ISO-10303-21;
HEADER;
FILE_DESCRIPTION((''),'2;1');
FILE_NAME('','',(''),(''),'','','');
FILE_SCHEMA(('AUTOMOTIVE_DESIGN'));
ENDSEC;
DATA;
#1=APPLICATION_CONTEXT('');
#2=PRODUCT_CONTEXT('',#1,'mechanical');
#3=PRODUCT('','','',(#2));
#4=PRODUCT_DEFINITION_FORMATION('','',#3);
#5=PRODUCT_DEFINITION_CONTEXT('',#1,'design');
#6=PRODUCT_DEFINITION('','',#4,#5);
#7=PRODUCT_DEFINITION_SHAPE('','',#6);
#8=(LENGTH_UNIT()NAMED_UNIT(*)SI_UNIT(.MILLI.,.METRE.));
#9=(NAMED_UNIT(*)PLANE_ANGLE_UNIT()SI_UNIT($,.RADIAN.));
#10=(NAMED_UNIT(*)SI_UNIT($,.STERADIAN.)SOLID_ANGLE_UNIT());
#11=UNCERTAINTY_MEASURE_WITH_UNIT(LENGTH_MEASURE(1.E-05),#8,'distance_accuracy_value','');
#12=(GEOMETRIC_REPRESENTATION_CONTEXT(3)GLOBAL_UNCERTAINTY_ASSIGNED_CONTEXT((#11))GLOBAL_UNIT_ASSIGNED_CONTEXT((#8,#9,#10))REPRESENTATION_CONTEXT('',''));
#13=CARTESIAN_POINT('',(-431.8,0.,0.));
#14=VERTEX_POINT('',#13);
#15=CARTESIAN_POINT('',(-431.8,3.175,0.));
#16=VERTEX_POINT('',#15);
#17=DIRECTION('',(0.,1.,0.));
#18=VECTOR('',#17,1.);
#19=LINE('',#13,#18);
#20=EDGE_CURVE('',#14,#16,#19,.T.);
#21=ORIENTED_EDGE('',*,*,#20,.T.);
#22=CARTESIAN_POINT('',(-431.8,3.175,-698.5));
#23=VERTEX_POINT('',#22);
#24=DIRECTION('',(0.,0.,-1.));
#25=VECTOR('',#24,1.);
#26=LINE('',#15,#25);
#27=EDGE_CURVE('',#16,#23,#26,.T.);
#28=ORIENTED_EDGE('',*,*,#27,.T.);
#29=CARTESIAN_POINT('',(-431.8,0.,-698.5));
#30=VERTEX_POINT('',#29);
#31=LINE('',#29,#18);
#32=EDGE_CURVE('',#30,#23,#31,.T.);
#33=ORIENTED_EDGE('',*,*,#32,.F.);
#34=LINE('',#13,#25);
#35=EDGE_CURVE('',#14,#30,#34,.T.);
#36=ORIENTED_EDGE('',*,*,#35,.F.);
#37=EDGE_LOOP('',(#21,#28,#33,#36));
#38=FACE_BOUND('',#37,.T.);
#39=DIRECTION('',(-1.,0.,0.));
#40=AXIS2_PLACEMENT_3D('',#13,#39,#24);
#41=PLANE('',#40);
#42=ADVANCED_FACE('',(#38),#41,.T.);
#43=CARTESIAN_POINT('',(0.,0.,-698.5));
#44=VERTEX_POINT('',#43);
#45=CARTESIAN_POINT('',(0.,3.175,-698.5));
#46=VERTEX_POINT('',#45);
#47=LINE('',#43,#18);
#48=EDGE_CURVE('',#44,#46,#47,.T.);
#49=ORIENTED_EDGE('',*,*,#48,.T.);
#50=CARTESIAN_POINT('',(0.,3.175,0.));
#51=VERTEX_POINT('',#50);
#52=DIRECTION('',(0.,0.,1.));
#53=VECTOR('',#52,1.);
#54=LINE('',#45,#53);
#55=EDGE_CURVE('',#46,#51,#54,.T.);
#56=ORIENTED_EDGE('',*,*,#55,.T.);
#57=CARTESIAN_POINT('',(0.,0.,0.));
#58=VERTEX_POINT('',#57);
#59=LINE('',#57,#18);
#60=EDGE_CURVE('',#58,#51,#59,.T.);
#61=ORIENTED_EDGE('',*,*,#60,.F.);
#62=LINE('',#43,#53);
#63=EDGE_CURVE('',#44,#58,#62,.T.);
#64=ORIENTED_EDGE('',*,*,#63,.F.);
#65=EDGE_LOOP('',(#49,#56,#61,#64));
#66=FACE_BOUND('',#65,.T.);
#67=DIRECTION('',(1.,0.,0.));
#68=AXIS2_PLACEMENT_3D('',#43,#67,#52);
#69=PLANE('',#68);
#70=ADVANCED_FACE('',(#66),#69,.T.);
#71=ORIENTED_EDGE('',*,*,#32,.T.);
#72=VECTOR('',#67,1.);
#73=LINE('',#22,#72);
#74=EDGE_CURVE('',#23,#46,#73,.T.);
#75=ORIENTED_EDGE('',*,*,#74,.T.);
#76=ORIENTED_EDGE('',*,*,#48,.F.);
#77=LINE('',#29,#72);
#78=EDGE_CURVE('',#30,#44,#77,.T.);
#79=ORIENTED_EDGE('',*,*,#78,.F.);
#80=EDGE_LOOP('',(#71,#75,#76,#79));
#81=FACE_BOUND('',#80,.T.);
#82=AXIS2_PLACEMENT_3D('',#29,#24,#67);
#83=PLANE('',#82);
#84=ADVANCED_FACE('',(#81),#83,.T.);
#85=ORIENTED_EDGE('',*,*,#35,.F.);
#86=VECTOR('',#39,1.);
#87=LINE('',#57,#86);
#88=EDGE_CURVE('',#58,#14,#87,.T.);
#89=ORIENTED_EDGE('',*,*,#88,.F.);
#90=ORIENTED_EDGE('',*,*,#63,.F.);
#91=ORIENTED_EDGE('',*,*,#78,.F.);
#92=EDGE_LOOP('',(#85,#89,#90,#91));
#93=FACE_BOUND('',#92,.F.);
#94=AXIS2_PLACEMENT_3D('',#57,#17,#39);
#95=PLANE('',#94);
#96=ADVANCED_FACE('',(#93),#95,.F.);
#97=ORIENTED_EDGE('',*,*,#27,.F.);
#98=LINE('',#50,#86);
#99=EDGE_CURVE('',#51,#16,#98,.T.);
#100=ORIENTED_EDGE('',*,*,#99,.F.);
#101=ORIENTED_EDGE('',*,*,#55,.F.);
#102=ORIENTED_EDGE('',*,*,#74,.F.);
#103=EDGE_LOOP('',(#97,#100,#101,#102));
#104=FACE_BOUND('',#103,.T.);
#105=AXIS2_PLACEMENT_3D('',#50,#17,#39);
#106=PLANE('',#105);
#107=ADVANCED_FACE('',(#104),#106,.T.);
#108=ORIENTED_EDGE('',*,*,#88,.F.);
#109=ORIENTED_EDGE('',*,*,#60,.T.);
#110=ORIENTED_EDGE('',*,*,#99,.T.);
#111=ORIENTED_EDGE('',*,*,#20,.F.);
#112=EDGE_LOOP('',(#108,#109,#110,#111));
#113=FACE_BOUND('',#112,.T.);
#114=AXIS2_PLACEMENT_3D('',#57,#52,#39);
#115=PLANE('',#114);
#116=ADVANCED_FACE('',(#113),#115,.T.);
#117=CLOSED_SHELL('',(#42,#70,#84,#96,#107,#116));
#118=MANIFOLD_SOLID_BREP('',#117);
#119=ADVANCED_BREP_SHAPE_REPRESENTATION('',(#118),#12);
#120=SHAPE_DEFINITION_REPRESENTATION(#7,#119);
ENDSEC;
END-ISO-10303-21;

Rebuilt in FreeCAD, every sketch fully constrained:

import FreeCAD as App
import Part
import Sketcher
Q = App.Units.Quantity

doc = App.newDocument("Part")
body = doc.addObject("PartDesign::Body", "Body")

sketch1 = body.newObject("Sketcher::SketchObject", "Sketch")
sketch1.AttachmentSupport = (doc.getObject("XZ_Plane"), [""])
sketch1.MapMode = "FlatFace"
sketch1.addGeometry(Part.LineSegment(App.Vector(-432, 0, 0), App.Vector(0, 0, 0)), False)
sketch1.addGeometry(Part.LineSegment(App.Vector(0, 0, 0), App.Vector(0, -698, 0)), False)
sketch1.addGeometry(Part.LineSegment(App.Vector(0, -698, 0), App.Vector(-432, -698, 0)), False)
sketch1.addGeometry(Part.LineSegment(App.Vector(-432, -698, 0), App.Vector(-432, 0, 0)), False)
sketch1.addConstraint(Sketcher.Constraint("Coincident", 0, 2, 1, 1))
sketch1.addConstraint(Sketcher.Constraint("Coincident", 1, 2, 2, 1))
sketch1.addConstraint(Sketcher.Constraint("Coincident", 2, 2, 3, 1))
sketch1.addConstraint(Sketcher.Constraint("Coincident", 3, 2, 0, 1))
sketch1.addConstraint(Sketcher.Constraint("Horizontal", 0))
sketch1.addConstraint(Sketcher.Constraint("Vertical", 1))
sketch1.addConstraint(Sketcher.Constraint("Horizontal", 2))
sketch1.addConstraint(Sketcher.Constraint("Vertical", 3))
sketch1.addConstraint(Sketcher.Constraint("Coincident", 0, 2, -1, 1))
sketch1.addConstraint(Sketcher.Constraint("DistanceX", 0, 1, 0, 2, Q("17 in")))
sketch1.addConstraint(Sketcher.Constraint("DistanceY", 1, 2, 1, 1, Q("27.5 in")))
pad1 = body.newObject("PartDesign::Pad", "Pad")
pad1.Profile = sketch1
pad1.Length = Q("0.125 in")
pad1.Reversed = True

doc.recompute()
